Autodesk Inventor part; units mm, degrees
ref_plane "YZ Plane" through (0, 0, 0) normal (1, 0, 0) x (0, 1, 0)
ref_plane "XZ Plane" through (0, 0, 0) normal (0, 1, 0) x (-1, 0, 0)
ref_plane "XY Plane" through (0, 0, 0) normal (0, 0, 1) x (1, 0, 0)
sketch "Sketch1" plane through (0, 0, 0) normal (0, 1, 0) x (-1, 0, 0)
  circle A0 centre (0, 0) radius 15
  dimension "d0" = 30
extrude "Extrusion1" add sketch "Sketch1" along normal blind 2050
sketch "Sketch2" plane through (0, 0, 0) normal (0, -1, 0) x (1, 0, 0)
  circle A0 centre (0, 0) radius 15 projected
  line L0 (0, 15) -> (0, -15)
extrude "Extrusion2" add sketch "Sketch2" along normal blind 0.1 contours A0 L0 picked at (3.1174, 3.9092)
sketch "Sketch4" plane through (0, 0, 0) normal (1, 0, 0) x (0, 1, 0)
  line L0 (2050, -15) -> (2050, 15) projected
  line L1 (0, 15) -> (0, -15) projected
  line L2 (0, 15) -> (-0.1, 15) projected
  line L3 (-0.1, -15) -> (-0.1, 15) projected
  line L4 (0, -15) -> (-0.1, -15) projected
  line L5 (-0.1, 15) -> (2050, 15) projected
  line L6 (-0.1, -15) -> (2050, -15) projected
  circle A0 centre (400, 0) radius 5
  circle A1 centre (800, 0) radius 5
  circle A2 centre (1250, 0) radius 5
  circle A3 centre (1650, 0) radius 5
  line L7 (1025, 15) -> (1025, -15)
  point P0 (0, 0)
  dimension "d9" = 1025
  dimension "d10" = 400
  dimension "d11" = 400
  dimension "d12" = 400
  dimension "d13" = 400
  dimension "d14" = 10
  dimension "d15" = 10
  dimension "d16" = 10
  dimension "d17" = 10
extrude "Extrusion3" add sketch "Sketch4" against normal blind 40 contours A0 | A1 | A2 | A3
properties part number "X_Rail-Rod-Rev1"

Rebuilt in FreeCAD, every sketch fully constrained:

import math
import FreeCAD as App
import Part
import Sketcher
from FreeCAD import Vector
Q = App.Units.Quantity

doc = App.newDocument("Part")
params = doc.addObject("Spreadsheet::Sheet", "Params")
for row, (alias, value) in enumerate([
    ("sketch1_diameter", "30 mm"),
    ("pad1_length", "2050 mm"),
    ("sketch2_radius", "15 mm"),
    ("pad2_length", "0.1 mm"),
    ("sketch3_diameter", "10 mm"),
    ("pad3_length", "40 mm"),
], start=1):
    params.set(f"A{row}", alias)
    params.set(f"B{row}", "=" + value)
    params.setAlias(f"B{row}", alias)

body = doc.addObject("PartDesign::Body", "Body")

# Sketch on XZ plane
sketch1 = body.newObject("Sketcher::SketchObject", "Sketch")
sketch1.AttachmentSupport = (doc.getObject("XZ_Plane"), [""])
sketch1.MapMode = "FlatFace"
sketch1.addGeometry(Part.Circle(Vector(0, 0, 0), Vector(0, 0, 1), 15), False)
sketch1.addConstraint([
    Sketcher.Constraint("Coincident", 0, 3, -1, 1),
    Sketcher.Constraint("Diameter", 0, Q("30 mm")),
])
sketch1.setExpression("Constraints[1]", "Params.sketch1_diameter")
pad1 = body.newObject("PartDesign::Pad", "Pad")
pad1.Profile = sketch1
pad1.setExpression("Length", "Params.pad1_length")
pad1.Reversed = True

# Sketch on XZ plane
sketch2 = body.newObject("Sketcher::SketchObject", "Sketch001")
sketch2.AttachmentSupport = (doc.getObject("XZ_Plane"), [""])
sketch2.MapMode = "FlatFace"
sketch2.addGeometry([
    Part.ArcOfCircle(Part.Circle(Vector(0, 0, 0), Vector(0, 0, 1), 15), math.radians(-90), math.radians(90)),
    Part.LineSegment(Vector(0, 15, 0), Vector(0, -15, 0)),
], False)
sketch2.addConstraint([
    Sketcher.Constraint("Coincident", 0, 1, 1, 2),
    Sketcher.Constraint("Coincident", 1, 1, 0, 2),
    Sketcher.Constraint("Vertical", 1),
    Sketcher.Constraint("Coincident", 0, 3, -1, 1),
    Sketcher.Constraint("PointOnObject", 0, 1, -2),
    Sketcher.Constraint("Radius", 0, Q("15 mm")),
])
sketch2.setExpression("Constraints[5]", "Params.sketch2_radius")
pad2 = body.newObject("PartDesign::Pad", "Pad001")
pad2.Profile = sketch2
pad2.setExpression("Length", "Params.pad2_length")

# Sketch on YZ plane
sketch3 = body.newObject("Sketcher::SketchObject", "Sketch002")
sketch3.AttachmentSupport = (doc.getObject("YZ_Plane"), [""])
sketch3.MapMode = "FlatFace"
sketch3.addGeometry([
    Part.Circle(Vector(400, 0, 0), Vector(0, 0, 1), 5),
    Part.Circle(Vector(800, 0, 0), Vector(0, 0, 1), 5),
    Part.Circle(Vector(1250, 0, 0), Vector(0, 0, 1), 5),
    Part.Circle(Vector(1650, 0, 0), Vector(0, 0, 1), 5),
], False)
sketch3.addConstraint([
    Sketcher.Constraint("Equal", 0, 1),
    Sketcher.Constraint("Equal", 1, 2),
    Sketcher.Constraint("Equal", 2, 3),
    Sketcher.Constraint("PointOnObject", 0, 3, -1),
    Sketcher.Constraint("PointOnObject", 1, 3, -1),
    Sketcher.Constraint("PointOnObject", 2, 3, -1),
    Sketcher.Constraint("PointOnObject", 3, 3, -1),
    Sketcher.Constraint("Diameter", 0, Q("10 mm")),
    Sketcher.Constraint("DistanceX", -1, 1, 0, 3, Q("400 mm")),
    Sketcher.Constraint("DistanceX", 0, 3, 1, 3, Q("400 mm")),
    Sketcher.Constraint("DistanceX", 2, 3, 3, 3, Q("400 mm")),
    Sketcher.Constraint("DistanceX", -1, 1, 2, 3, Q("1250 mm")),
])
sketch3.setExpression("Constraints[7]", "Params.sketch3_diameter")
pad3 = body.newObject("PartDesign::Pad", "Pad002")
pad3.Profile = sketch3
pad3.setExpression("Length", "Params.pad3_length")
pad3.Reversed = True

doc.recompute()
